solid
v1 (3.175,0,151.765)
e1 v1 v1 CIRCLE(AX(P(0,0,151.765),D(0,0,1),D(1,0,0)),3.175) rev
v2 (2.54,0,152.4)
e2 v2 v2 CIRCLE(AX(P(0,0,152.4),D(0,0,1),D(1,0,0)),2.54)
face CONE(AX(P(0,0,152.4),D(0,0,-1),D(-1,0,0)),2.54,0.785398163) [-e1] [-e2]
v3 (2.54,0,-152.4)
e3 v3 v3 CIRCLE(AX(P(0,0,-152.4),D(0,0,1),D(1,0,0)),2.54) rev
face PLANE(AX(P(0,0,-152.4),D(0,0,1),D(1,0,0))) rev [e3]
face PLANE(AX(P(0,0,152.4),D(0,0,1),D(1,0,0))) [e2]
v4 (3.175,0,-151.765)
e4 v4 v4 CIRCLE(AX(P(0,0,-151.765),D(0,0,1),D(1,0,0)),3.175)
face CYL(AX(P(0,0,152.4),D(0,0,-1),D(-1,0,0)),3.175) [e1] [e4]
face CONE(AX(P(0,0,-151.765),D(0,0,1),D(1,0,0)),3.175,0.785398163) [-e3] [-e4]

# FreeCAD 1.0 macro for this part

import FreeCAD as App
import Part
import Sketcher
from FreeCAD import Vector
Q = App.Units.Quantity


def edges_at(feature, points):
    """Names of the edges that pass closest to the given points."""
    edges = feature.Shape.Edges
    near = lambda p: min(range(len(edges)), key=lambda i: edges[i].distToShape(Part.Vertex(*p))[0])
    return sorted({f"Edge{near(p) + 1}" for p in points})

doc = App.newDocument("Part")
body = doc.addObject("PartDesign::Body", "Body")

# Sketch on XY plane
sketch1 = body.newObject("Sketcher::SketchObject", "Sketch")
sketch1.AttachmentSupport = (doc.getObject("XY_Plane"), [""])
sketch1.MapMode = "FlatFace"
sketch1.addGeometry(Part.Circle(Vector(0, 0, 0), Vector(0, 0, 1), 3.175), False)
sketch1.addConstraint([
    Sketcher.Constraint("Coincident", 0, 3, -1, 1),
    Sketcher.Constraint("Diameter", 0, Q("0.25 in")),
])
pad1 = body.newObject("PartDesign::Pad", "Pad")
pad1.Profile = sketch1
pad1.Length = Q("12 in")
pad1.Midplane = True
doc.recompute()

chamfer = body.newObject("PartDesign::Chamfer", "Chamfer")
chamfer.Base = (pad1, edges_at(pad1, [(-3.175, 0, -152.4), (-3.175, 0, 152.4)]))
chamfer.Size = Q("0.025 in")

doc.recompute()
